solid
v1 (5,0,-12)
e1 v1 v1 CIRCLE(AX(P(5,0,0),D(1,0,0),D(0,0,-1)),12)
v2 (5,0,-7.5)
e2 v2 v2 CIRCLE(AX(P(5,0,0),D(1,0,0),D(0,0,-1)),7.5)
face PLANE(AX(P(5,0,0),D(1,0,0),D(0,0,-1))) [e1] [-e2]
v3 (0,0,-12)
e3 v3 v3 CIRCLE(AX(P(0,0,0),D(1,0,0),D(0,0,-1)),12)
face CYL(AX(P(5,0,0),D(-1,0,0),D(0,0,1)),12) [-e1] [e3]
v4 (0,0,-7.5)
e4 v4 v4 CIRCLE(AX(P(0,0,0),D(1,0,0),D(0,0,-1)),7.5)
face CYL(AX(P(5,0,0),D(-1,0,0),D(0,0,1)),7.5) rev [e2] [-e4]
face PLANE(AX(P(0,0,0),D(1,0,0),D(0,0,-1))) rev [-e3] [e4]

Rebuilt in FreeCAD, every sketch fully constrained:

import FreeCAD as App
import Part
import Sketcher

V = App.Vector
Q = App.Units.Quantity

doc = App.newDocument("Part")
body = doc.addObject("PartDesign::Body", "Body")

sketch1 = doc.addObject("Sketcher::SketchObject", "Sketch")
body.addObject(sketch1)
sketch1.AttachmentSupport = (doc.YZ_Plane, [""])
sketch1.MapMode = "FlatFace"
sketch1.addGeometry([
    Part.Circle(V(0, 0, 0), V(0, 0, 1), 12),
    Part.Circle(V(0, 0, 0), V(0, 0, 1), 8),
], False)
sketch1.addConstraint([
    Sketcher.Constraint("Coincident", 0, 3, -1, 1),
    Sketcher.Constraint("Coincident", 1, 3, -1, 1),
    Sketcher.Constraint("Diameter", 0, Q("24 mm")),
    Sketcher.Constraint("Diameter", 1, Q("15 mm")),
])
pad1 = doc.addObject("PartDesign::Pad", "Pad")
body.addObject(pad1)
pad1.Profile = sketch1
pad1.Length = 5

doc.recompute()
